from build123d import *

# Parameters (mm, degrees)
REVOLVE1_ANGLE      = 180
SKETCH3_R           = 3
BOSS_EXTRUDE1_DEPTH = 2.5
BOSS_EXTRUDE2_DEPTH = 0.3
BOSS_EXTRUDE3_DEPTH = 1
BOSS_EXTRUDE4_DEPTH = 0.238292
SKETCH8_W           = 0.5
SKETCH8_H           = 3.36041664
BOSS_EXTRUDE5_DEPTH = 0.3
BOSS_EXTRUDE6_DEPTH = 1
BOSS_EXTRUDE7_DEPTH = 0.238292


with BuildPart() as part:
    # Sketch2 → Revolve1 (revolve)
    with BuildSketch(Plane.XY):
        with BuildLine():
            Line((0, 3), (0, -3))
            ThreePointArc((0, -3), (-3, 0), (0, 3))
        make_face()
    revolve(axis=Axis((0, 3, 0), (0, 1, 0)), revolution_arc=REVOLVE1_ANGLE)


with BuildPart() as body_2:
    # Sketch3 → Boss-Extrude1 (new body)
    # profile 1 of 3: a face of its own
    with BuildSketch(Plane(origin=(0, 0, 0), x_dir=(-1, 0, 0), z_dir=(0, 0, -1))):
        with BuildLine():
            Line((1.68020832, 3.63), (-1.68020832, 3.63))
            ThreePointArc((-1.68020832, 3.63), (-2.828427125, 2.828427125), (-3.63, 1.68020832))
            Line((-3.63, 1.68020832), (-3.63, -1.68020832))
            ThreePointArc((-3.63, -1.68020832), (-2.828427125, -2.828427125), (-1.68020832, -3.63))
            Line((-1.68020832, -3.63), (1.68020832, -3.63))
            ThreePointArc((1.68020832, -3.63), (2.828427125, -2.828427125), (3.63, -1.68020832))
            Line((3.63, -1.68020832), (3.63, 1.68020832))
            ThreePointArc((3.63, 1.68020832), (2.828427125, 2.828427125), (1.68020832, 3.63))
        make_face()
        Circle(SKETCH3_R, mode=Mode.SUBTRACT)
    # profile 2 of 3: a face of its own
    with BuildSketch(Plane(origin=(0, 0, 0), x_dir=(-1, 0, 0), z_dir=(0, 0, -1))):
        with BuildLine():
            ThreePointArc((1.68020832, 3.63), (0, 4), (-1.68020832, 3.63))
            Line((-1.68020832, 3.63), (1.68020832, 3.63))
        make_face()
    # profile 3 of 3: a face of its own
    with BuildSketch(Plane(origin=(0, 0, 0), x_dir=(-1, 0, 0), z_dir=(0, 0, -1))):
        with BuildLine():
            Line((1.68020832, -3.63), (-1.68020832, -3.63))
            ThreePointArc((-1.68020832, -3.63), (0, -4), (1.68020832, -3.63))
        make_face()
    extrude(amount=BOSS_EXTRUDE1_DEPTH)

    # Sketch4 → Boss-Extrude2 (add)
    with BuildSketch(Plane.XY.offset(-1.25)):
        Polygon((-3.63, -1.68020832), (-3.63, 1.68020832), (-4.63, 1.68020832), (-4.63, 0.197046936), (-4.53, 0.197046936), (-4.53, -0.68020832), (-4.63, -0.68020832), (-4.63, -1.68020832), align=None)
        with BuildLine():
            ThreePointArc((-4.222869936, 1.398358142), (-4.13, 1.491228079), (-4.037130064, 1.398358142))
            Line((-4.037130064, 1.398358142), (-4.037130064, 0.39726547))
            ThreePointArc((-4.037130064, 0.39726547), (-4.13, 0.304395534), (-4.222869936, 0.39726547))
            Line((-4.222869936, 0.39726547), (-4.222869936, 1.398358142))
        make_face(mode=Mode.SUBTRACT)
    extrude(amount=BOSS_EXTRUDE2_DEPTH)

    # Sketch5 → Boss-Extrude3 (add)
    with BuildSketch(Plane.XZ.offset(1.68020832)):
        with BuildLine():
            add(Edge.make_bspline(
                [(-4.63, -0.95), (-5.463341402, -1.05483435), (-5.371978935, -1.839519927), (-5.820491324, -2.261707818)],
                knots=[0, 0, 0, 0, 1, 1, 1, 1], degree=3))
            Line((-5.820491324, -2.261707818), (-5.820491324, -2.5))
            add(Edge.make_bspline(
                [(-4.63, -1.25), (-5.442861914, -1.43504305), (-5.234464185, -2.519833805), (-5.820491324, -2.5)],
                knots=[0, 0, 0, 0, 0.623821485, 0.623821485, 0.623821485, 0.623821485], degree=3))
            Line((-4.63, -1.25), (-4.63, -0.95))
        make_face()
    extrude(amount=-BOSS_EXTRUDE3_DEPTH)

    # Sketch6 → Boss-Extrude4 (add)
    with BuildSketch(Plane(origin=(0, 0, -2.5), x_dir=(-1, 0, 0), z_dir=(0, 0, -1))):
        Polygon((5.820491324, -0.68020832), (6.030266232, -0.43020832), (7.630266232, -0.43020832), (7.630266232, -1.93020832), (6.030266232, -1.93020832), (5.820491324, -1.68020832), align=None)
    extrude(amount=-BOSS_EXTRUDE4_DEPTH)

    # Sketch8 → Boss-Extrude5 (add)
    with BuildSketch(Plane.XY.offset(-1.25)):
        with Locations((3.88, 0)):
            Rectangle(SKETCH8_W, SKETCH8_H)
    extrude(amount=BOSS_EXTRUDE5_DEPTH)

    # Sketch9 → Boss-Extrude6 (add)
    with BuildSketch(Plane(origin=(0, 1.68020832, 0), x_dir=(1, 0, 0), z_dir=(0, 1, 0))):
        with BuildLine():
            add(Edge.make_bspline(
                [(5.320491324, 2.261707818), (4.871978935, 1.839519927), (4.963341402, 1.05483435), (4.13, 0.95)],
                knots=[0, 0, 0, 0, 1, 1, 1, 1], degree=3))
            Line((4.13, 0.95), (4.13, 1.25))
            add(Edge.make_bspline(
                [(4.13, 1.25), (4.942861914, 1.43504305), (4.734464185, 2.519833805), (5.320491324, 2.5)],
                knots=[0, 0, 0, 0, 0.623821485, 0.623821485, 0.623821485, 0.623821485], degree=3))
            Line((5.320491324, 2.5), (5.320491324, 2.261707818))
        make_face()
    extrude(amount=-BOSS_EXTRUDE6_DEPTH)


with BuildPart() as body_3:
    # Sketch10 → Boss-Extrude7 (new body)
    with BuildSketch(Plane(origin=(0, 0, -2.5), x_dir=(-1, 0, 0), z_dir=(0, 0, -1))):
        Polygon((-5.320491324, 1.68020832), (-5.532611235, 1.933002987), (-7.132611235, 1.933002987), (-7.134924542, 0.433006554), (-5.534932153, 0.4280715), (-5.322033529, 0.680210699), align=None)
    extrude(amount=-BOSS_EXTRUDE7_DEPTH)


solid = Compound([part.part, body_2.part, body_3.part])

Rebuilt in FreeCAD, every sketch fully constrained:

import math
import FreeCAD as App
import Part
import Sketcher
Q = App.Units.Quantity

doc = App.newDocument("Part")
body = doc.addObject("PartDesign::Body", "Body")

# Sketch on XY plane
sketch1 = body.newObject("Sketcher::SketchObject", "Sketch")
sketch1.AttachmentSupport = (doc.getObject("XY_Plane"), [""])
sketch1.MapMode = "FlatFace"
sketch1.addGeometry([
    Part.LineSegment(App.Vector(0, -3, 0), App.Vector(0, 3, 0)),
    Part.ArcOfCircle(Part.Circle(App.Vector(0, 0, 0), App.Vector(0, 0, 1), 3), math.radians(90), math.radians(270)),
], False)
sketch1.addConstraint([
    Sketcher.Constraint("Coincident", 0, 1, 1, 2),
    Sketcher.Constraint("Coincident", 1, 1, 0, 2),
    Sketcher.Constraint("Vertical", 0),
    Sketcher.Constraint("Coincident", 1, 3, -1, 1),
    Sketcher.Constraint("PointOnObject", 0, 1, -2),
    Sketcher.Constraint("Radius", 1, 3.0),
])
revolution = body.newObject("PartDesign::Revolution", "Revolution")
revolution.Profile = sketch1
revolution.ReferenceAxis = (sketch1, ["V_Axis"])
revolution.Angle = 180
body2 = doc.addObject("PartDesign::Body", "Body001")

# Sketch on XY plane
sketch2 = body2.newObject("Sketcher::SketchObject", "Sketch001")
sketch2.AttachmentSupport = (doc.getObject("XY_Plane001"), [""])
sketch2.MapMode = "FlatFace"
sketch2.addGeometry([
    Part.ArcOfCircle(Part.Circle(App.Vector(0, 0, 0), App.Vector(0, 0, 1), 4), math.radians(115), math.radians(155)),  # 0
    Part.ArcOfCircle(Part.Circle(App.Vector(0, 0, 0), App.Vector(0, 0, 1), 4), math.radians(65), math.radians(115)),  # 1
    Part.ArcOfCircle(Part.Circle(App.Vector(0, 0, 0), App.Vector(0, 0, 1), 4), math.radians(25), math.radians(65)),  # 2
    Part.LineSegment(App.Vector(3.6, 1.7, 0), App.Vector(3.6, -1.7, 0)),  # 3
    Part.ArcOfCircle(Part.Circle(App.Vector(0, 0, 0), App.Vector(0, 0, 1), 4), math.radians(-65), math.radians(-25)),  # 4
    Part.ArcOfCircle(Part.Circle(App.Vector(0, 0, 0), App.Vector(0, 0, 1), 4), math.radians(-115), math.radians(-65)),  # 5
    Part.ArcOfCircle(Part.Circle(App.Vector(0, 0, 0), App.Vector(0, 0, 1), 4), math.radians(-155), math.radians(-115)),  # 6
    Part.LineSegment(App.Vector(-3.6, -1.7, 0), App.Vector(-3.6, 1.7, 0)),  # 7
    Part.Circle(App.Vector(0, 0, 0), App.Vector(0, 0, 1), 3),  # 8
], False)
sketch2.addConstraint([
    Sketcher.Constraint("Tangent", 0, 1, 1, 2),
    Sketcher.Constraint("Tangent", 1, 1, 2, 2),
    Sketcher.Constraint("Coincident", 2, 1, 3, 1),
    Sketcher.Constraint("Coincident", 3, 2, 4, 2),
    Sketcher.Constraint("Tangent", 4, 1, 5, 2),
    Sketcher.Constraint("Tangent", 5, 1, 6, 2),
    Sketcher.Constraint("Coincident", 6, 1, 7, 1),
    Sketcher.Constraint("Coincident", 7, 2, 0, 2),
    Sketcher.Constraint("Vertical", 3),
    Sketcher.Constraint("Vertical", 7),
    Sketcher.Constraint("Coincident", 0, 3, -1, 1),
    Sketcher.Constraint("Coincident", 2, 3, -1, 1),
    Sketcher.Constraint("Coincident", 4, 3, -1, 1),
    Sketcher.Constraint("Coincident", 6, 3, -1, 1),
    Sketcher.Constraint("Coincident", 8, 3, -1, 1),
    Sketcher.Constraint("Equal", 2, 4),
    Sketcher.Constraint("Horizontal", 0, 1, 1, 1),
    Sketcher.Constraint("Horizontal", 4, 1, 5, 1),
    Sketcher.Constraint("Horizontal", 3, 2, 6, 1),
    Sketcher.Constraint("Vertical", 1, 1, 4, 1),
    Sketcher.Constraint("Diameter", 8, 6.0),
    Sketcher.Constraint("Radius", 0, 4.0),
    Sketcher.Constraint("DistanceY", -1, 1, 0, 1, 3.63),
    Sketcher.Constraint("DistanceX", -1, 1, 2, 1, 3.63),
])
pad1 = body2.newObject("PartDesign::Pad", "Pad")
pad1.Profile = sketch2
pad1.Length = 2.5
pad1.Reversed = True

# Sketch on XY plane
sketch3 = body2.newObject("Sketcher::SketchObject", "Sketch002")
sketch3.AttachmentSupport = (doc.getObject("XY_Plane001"), [""])
sketch3.MapMode = "FlatFace"
sketch3.AttachmentOffset = App.Placement(App.Vector(0, 0, -1.25), App.Rotation())
sketch3.addGeometry([
    Part.LineSegment(App.Vector(-3.63, -1.68, 0), App.Vector(-3.63, 1.68, 0)),  # 0
    Part.LineSegment(App.Vector(-3.63, 1.68, 0), App.Vector(-4.63, 1.68, 0)),  # 1
    Part.LineSegment(App.Vector(-4.63, 1.68, 0), App.Vector(-4.63, 0.2, 0)),  # 2
    Part.LineSegment(App.Vector(-4.63, 0.2, 0), App.Vector(-4.53, 0.2, 0)),  # 3
    Part.LineSegment(App.Vector(-4.53, 0.2, 0), App.Vector(-4.53, -0.68, 0)),  # 4
    Part.LineSegment(App.Vector(-4.53, -0.68, 0), App.Vector(-4.63, -0.68, 0)),  # 5
    Part.LineSegment(App.Vector(-4.63, -0.68, 0), App.Vector(-4.63, -1.68, 0)),  # 6
    Part.LineSegment(App.Vector(-4.63, -1.68, 0), App.Vector(-3.63, -1.68, 0)),  # 7
    Part.LineSegment(App.Vector(-4.22, 0.4, 0), App.Vector(-4.22, 1.4, 0)),  # 8
    Part.ArcOfCircle(Part.Circle(App.Vector(-4.13, 1.4, 0), App.Vector(0, 0, 1), 0.09), math.radians(0), math.radians(180)),  # 9
    Part.LineSegment(App.Vector(-4.04, 1.4, 0), App.Vector(-4.04, 0.4, 0)),  # 10
    Part.ArcOfCircle(Part.Circle(App.Vector(-4.13, 0.4, 0), App.Vector(0, 0, 1), 0.09), math.radians(180), math.radians(360)),  # 11
], False)
sketch3.addConstraint([
    Sketcher.Constraint("Coincident", 0, 2, 1, 1),
    Sketcher.Constraint("Coincident", 1, 2, 2, 1),
    Sketcher.Constraint("Coincident", 2, 2, 3, 1),
    Sketcher.Constraint("Coincident", 3, 2, 4, 1),
    Sketcher.Constraint("Coincident", 4, 2, 5, 1),
    Sketcher.Constraint("Coincident", 5, 2, 6, 1),
    Sketcher.Constraint("Coincident", 6, 2, 7, 1),
    Sketcher.Constraint("Coincident", 7, 2, 0, 1),
    Sketcher.Constraint("Tangent", 8, 2, 9, 2),
    Sketcher.Constraint("Tangent", 9, 1, 10, 1),
    Sketcher.Constraint("Tangent", 10, 2, 11, 2),
    Sketcher.Constraint("Tangent", 11, 1, 8, 1),
    Sketcher.Constraint("Vertical", 0),
    Sketcher.Constraint("Horizontal", 1),
    Sketcher.Constraint("Vertical", 2),
    Sketcher.Constraint("Horizontal", 3),
    Sketcher.Constraint("Vertical", 4),
    Sketcher.Constraint("Horizontal", 5),
    Sketcher.Constraint("Vertical", 6),
    Sketcher.Constraint("Horizontal", 7),
    Sketcher.Constraint("Vertical", 8),
    Sketcher.Constraint("Vertical", 10),
    Sketcher.Constraint("Symmetric", 1, 2, 6, 2, -1),
    Sketcher.Constraint("Equal", 7, 6),
    Sketcher.Constraint("DistanceX", 1, 2, 1, 1, 1.0),
    Sketcher.Constraint("DistanceX", 3, 1, 3, 2, 0.1),
    Sketcher.Constraint("DistanceX", 9, 3, 0, 2, 0.5),
    Sketcher.Constraint("DistanceX", 9, 3, -1, 1, 4.13),
    Sketcher.Constraint("Radius", 9, 0.09287),
    Sketcher.Constraint("DistanceY", 2, 2, 2, 1, 1.483161),
    Sketcher.Constraint("DistanceY", 0, 1, 0, 2, 3.360417),
    Sketcher.Constraint("DistanceY", 8, 1, 8, 2, 1.001093),
    Sketcher.Constraint("DistanceY", -1, 1, 9, 3, 1.398358),
])
pad2 = body2.newObject("PartDesign::Pad", "Pad001")
pad2.Profile = sketch3
pad2.Length = 0.3

# Sketch on XZ plane
sketch4 = body2.newObject("Sketcher::SketchObject", "Sketch003")
sketch4.AttachmentSupport = (doc.getObject("XZ_Plane001"), [""])
sketch4.MapMode = "FlatFace"
sketch4.AttachmentOffset = App.Placement(App.Vector(0, 0, 1.680208), App.Rotation())
sketch4.addGeometry([
    Part.BSplineCurve([App.Vector(-4.63, -0.95, 0), App.Vector(-5.463341, -1.054834, 0), App.Vector(-5.371979, -1.83952, 0), App.Vector(-5.820491, -2.261708, 0)], [4, 4], [0, 1], False, 3, [1, 1, 1, 1], False),
    Part.LineSegment(App.Vector(-5.820491, -2.261708, 0), App.Vector(-5.820491, -2.5, 0)),
    Part.BSplineCurve([App.Vector(-4.63, -1.25, 0), App.Vector(-5.442862, -1.435043, 0), App.Vector(-5.234464, -2.519834, 0), App.Vector(-5.820491, -2.5, 0)], [4, 4], [0, 0.623821485], False, 3, [1, 1, 1, 1], False),
    Part.LineSegment(App.Vector(-4.63, -1.25, 0), App.Vector(-4.63, -0.95, 0)),
], False)
sketch4.addConstraint([
    Sketcher.Constraint("Block", 0),
    Sketcher.Constraint("Block", 2),
    Sketcher.Constraint("Coincident", 0, 2, 1, 1),
    Sketcher.Constraint("Coincident", 1, 2, 2, 2),
    Sketcher.Constraint("Coincident", 2, 1, 3, 1),
    Sketcher.Constraint("Coincident", 3, 2, 0, 1),
])
pad3 = body2.newObject("PartDesign::Pad", "Pad002")
pad3.Profile = sketch4
pad3.Length = 1
pad3.Reversed = True

# Sketch on XY plane
sketch5 = body2.newObject("Sketcher::SketchObject", "Sketch004")
sketch5.AttachmentSupport = (doc.getObject("XY_Plane001"), [""])
sketch5.MapMode = "FlatFace"
sketch5.AttachmentOffset = App.Placement(App.Vector(0, 0, -2.5), App.Rotation())
sketch5.addGeometry([
    Part.LineSegment(App.Vector(-6.03, -0.43, 0), App.Vector(-5.82, -0.68, 0)),  # 0
    Part.LineSegment(App.Vector(-5.82, -0.68, 0), App.Vector(-5.82, -1.68, 0)),  # 1
    Part.LineSegment(App.Vector(-5.82, -1.68, 0), App.Vector(-6.03, -1.93, 0)),  # 2
    Part.LineSegment(App.Vector(-6.03, -1.93, 0), App.Vector(-7.63, -1.93, 0)),  # 3
    Part.LineSegment(App.Vector(-7.63, -1.93, 0), App.Vector(-7.63, -0.43, 0)),  # 4
    Part.LineSegment(App.Vector(-7.63, -0.43, 0), App.Vector(-6.03, -0.43, 0)),  # 5
], False)
sketch5.addConstraint([
    Sketcher.Constraint("Coincident", 0, 2, 1, 1),
    Sketcher.Constraint("Coincident", 1, 2, 2, 1),
    Sketcher.Constraint("Coincident", 2, 2, 3, 1),
    Sketcher.Constraint("Coincident", 3, 2, 4, 1),
    Sketcher.Constraint("Coincident", 4, 2, 5, 1),
    Sketcher.Constraint("Coincident", 5, 2, 0, 1),
    Sketcher.Constraint("Vertical", 1),
    Sketcher.Constraint("Horizontal", 3),
    Sketcher.Constraint("Vertical", 4),
    Sketcher.Constraint("Horizontal", 5),
    Sketcher.Constraint("Vertical", 2, 2, 5, 2),
    Sketcher.Constraint("Equal", 0, 2),
    Sketcher.Constraint("DistanceY", 1, 2, 1, 1, 1.0),
    Sketcher.Constraint("Angle", 0, Q("-50 deg")),
    Sketcher.Constraint("DistanceX", 3, 2, 3, 1, 1.6),
    Sketcher.Constraint("DistanceY", 4, 1, 4, 2, 1.5),
    Sketcher.Constraint("DistanceX", 0, 2, -1, 1, 5.820491),
    Sketcher.Constraint("DistanceY", 0, 2, -1, 1, 0.680208),
])
pad4 = body2.newObject("PartDesign::Pad", "Pad003")
pad4.Profile = sketch5
pad4.Length = 0.238292

# Sketch on XY plane
sketch6 = body2.newObject("Sketcher::SketchObject", "Sketch005")
sketch6.AttachmentSupport = (doc.getObject("XY_Plane001"), [""])
sketch6.MapMode = "FlatFace"
sketch6.AttachmentOffset = App.Placement(App.Vector(0, 0, -1.25), App.Rotation())
sketch6.addGeometry([
    Part.LineSegment(App.Vector(3.6, 1.7, 0), App.Vector(3.6, -1.7, 0)),
    Part.LineSegment(App.Vector(3.6, -1.7, 0), App.Vector(4.1, -1.7, 0)),
    Part.LineSegment(App.Vector(4.1, -1.7, 0), App.Vector(4.1, 1.7, 0)),
    Part.LineSegment(App.Vector(4.1, 1.7, 0), App.Vector(3.6, 1.7, 0)),
], False)
sketch6.addConstraint([
    Sketcher.Constraint("Coincident", 0, 2, 1, 1),
    Sketcher.Constraint("Coincident", 1, 2, 2, 1),
    Sketcher.Constraint("Coincident", 2, 2, 3, 1),
    Sketcher.Constraint("Coincident", 3, 2, 0, 1),
    Sketcher.Constraint("Vertical", 0),
    Sketcher.Constraint("Horizontal", 1),
    Sketcher.Constraint("Vertical", 2),
    Sketcher.Constraint("Horizontal", 3),
    Sketcher.Constraint("DistanceX", 1, 1, 1, 2, 0.5),
    Sketcher.Constraint("DistanceX", -1, 1, 0, 2, 3.63),
    Sketcher.Constraint("DistanceY", 0, 2, 0, 1, 3.360417),
    Sketcher.Constraint("DistanceY", 0, 2, -1, 1, 1.680208),
])
pad5 = body2.newObject("PartDesign::Pad", "Pad004")
pad5.Profile = sketch6
pad5.Length = 0.3

# Sketch on XZ plane
sketch7 = body2.newObject("Sketcher::SketchObject", "Sketch006")
sketch7.AttachmentSupport = (doc.getObject("XZ_Plane001"), [""])
sketch7.MapMode = "FlatFace"
sketch7.AttachmentOffset = App.Placement(App.Vector(0, 0, -1.680208), App.Rotation())
sketch7.addGeometry([
    Part.BSplineCurve([App.Vector(5.320491, -2.261708, 0), App.Vector(4.871979, -1.83952, 0), App.Vector(4.963341, -1.054834, 0), App.Vector(4.13, -0.95, 0)], [4, 4], [0, 1], False, 3, [1, 1, 1, 1], False),
    Part.LineSegment(App.Vector(5.320491, -2.261708, 0), App.Vector(5.320491, -2.5, 0)),
    Part.BSplineCurve([App.Vector(4.13, -1.25, 0), App.Vector(4.942862, -1.435043, 0), App.Vector(4.734464, -2.519834, 0), App.Vector(5.320491, -2.5, 0)], [4, 4], [0, 0.623821485], False, 3, [1, 1, 1, 1], False),
    Part.LineSegment(App.Vector(4.13, -1.25, 0), App.Vector(4.13, -0.95, 0)),
], False)
sketch7.addConstraint([
    Sketcher.Constraint("Block", 0),
    Sketcher.Constraint("Block", 2),
    Sketcher.Constraint("Coincident", 0, 1, 1, 1),
    Sketcher.Constraint("Coincident", 1, 2, 2, 2),
    Sketcher.Constraint("Coincident", 2, 1, 3, 1),
    Sketcher.Constraint("Coincident", 3, 2, 0, 2),
])
pad6 = body2.newObject("PartDesign::Pad", "Pad005")
pad6.Profile = sketch7
pad6.Length = 1
body3 = doc.addObject("PartDesign::Body", "Body002")

# Sketch on XY plane
sketch8 = body3.newObject("Sketcher::SketchObject", "Sketch007")
sketch8.AttachmentSupport = (doc.getObject("XY_Plane002"), [""])
sketch8.MapMode = "FlatFace"
sketch8.AttachmentOffset = App.Placement(App.Vector(0, 0, -2.5), App.Rotation())
sketch8.addGeometry([
    Part.LineSegment(App.Vector(5.32, 1.68, 0), App.Vector(5.53, 1.93, 0)),  # 0
    Part.LineSegment(App.Vector(5.53, 1.93, 0), App.Vector(7.13, 1.93, 0)),  # 1
    Part.LineSegment(App.Vector(7.13, 1.93, 0), App.Vector(7.13, 0.43, 0)),  # 2
    Part.LineSegment(App.Vector(7.13, 0.43, 0), App.Vector(5.53, 0.43, 0)),  # 3
    Part.LineSegment(App.Vector(5.53, 0.43, 0), App.Vector(5.32, 0.68, 0)),  # 4
    Part.LineSegment(App.Vector(5.32, 0.68, 0), App.Vector(5.32, 1.68, 0)),  # 5
], False)
sketch8.addConstraint([
    Sketcher.Constraint("Coincident", 0, 2, 1, 1),
    Sketcher.Constraint("Coincident", 1, 2, 2, 1),
    Sketcher.Constraint("Coincident", 2, 2, 3, 1),
    Sketcher.Constraint("Coincident", 3, 2, 4, 1),
    Sketcher.Constraint("Coincident", 4, 2, 5, 1),
    Sketcher.Constraint("Coincident", 5, 2, 0, 1),
    Sketcher.Constraint("Horizontal", 1),
    Sketcher.Constraint("Parallel", 2, 5),
    Sketcher.Constraint("Equal", 0, 4),
    Sketcher.Constraint("Angle", 0, Q("50 deg")),
    Sketcher.Constraint("Distance", 5, 0.999999),
    Sketcher.Constraint("DistanceX", 1, 1, 1, 2, 1.6),
    Sketcher.Constraint("Distance", 2, 1.499998),
    Sketcher.Constraint("Distance", 3, 1.6),
    Sketcher.Constraint("Distance", 0, 0.33),
    Sketcher.Constraint("DistanceX", 4, 2, 3, 2, 0.212899),
    Sketcher.Constraint("DistanceX", -1, 1, 0, 2, 5.532611),
    Sketcher.Constraint("DistanceY", -1, 1, 3, 2, 0.428071),
])
pad7 = body3.newObject("PartDesign::Pad", "Pad006")
pad7.Profile = sketch8
pad7.Length = 0.238292

doc.recompute()
